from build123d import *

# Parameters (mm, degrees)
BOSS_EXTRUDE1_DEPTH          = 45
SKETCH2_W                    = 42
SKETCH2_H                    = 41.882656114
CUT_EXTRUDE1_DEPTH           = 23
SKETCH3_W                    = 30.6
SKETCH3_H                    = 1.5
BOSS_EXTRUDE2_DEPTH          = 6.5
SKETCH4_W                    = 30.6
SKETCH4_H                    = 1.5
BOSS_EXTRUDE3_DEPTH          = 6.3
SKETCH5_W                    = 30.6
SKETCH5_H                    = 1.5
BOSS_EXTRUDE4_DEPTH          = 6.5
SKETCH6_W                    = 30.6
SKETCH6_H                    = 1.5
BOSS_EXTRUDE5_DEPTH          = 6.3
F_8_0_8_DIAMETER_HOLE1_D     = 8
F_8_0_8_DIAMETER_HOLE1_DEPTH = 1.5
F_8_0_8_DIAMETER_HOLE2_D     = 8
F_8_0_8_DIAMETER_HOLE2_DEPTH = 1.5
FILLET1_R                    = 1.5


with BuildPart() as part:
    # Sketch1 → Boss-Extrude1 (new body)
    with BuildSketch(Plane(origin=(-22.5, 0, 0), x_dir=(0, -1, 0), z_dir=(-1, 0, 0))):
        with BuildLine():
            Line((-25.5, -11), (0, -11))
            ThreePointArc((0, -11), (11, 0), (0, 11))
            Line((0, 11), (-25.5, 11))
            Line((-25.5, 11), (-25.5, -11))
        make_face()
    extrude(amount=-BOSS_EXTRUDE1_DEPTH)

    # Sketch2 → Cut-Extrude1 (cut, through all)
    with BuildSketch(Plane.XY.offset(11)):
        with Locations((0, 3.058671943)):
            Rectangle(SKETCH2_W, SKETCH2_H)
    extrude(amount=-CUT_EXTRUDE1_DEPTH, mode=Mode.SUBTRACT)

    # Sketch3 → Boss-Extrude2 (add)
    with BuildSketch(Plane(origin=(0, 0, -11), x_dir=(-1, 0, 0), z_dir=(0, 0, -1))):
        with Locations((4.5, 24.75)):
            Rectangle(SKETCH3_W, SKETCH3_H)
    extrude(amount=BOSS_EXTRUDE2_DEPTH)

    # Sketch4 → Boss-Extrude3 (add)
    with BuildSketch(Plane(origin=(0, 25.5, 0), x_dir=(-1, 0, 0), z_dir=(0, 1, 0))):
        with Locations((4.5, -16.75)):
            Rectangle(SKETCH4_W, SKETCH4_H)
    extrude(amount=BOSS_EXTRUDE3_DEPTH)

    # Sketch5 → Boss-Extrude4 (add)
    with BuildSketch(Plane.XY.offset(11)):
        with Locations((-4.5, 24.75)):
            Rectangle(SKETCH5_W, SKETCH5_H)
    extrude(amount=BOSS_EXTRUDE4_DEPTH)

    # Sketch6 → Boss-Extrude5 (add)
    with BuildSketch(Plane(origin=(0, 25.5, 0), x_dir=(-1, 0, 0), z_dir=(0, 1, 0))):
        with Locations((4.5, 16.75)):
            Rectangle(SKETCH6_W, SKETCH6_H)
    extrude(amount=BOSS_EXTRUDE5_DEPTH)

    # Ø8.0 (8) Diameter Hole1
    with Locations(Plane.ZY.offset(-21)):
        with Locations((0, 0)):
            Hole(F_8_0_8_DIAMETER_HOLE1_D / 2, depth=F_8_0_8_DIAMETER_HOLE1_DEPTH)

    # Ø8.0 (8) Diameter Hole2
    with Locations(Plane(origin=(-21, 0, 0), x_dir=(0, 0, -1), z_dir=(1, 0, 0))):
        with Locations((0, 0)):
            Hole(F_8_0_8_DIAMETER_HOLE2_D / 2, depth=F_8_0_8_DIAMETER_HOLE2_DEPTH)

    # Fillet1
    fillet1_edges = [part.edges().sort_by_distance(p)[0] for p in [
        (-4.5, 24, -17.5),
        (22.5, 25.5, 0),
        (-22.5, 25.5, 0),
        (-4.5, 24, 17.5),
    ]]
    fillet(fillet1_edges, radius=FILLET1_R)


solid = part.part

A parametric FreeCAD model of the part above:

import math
import FreeCAD as App
import Part
import Sketcher

V = App.Vector


def edges_at(feature, points):
    """Names of the edges that pass closest to the given points."""
    edges = feature.Shape.Edges
    near = lambda p: min(range(len(edges)), key=lambda i: edges[i].distToShape(Part.Vertex(*p))[0])
    return sorted({f"Edge{near(p) + 1}" for p in points})


def add_polygon(sketch, points):
    """Adds a closed chain of lines whose ends are joined by coincident constraints."""
    first, n = sketch.GeometryCount, len(points)
    for a, b in zip(points, points[1:] + points[:1]):
        sketch.addGeometry(Part.LineSegment(App.Vector(*a, 0), App.Vector(*b, 0)), False)
    for i in range(n):
        sketch.addConstraint(Sketcher.Constraint("Coincident", first + i, 2, first + (i + 1) % n, 1))

doc = App.newDocument("Part")
body = doc.addObject("PartDesign::Body", "Body")

sketch1 = doc.addObject("Sketcher::SketchObject", "Sketch")
body.addObject(sketch1)
sketch1.AttachmentSupport = (doc.YZ_Plane, [""])
sketch1.MapMode = "FlatFace"
sketch1.AttachmentOffset = App.Placement(V(0, 0, -22.5), App.Rotation())
sketch1.addGeometry([
    Part.LineSegment(V(26, -11, 0), V(0, -11, 0)),
    Part.ArcOfCircle(Part.Circle(V(0, 0, 0), V(0, 0, 1), 11), math.radians(90), math.radians(270)),
    Part.LineSegment(V(0, 11, 0), V(26, 11, 0)),
    Part.LineSegment(V(26, 11, 0), V(26, -11, 0)),
], False)
sketch1.addConstraint([
    Sketcher.Constraint("Tangent", 0, 2, 1, 2),
    Sketcher.Constraint("Tangent", 1, 1, 2, 1),
    Sketcher.Constraint("Coincident", 2, 2, 3, 1),
    Sketcher.Constraint("Coincident", 3, 2, 0, 1),
    Sketcher.Constraint("Horizontal", 0),
    Sketcher.Constraint("Horizontal", 2),
    Sketcher.Constraint("Vertical", 3),
    Sketcher.Constraint("Coincident", 1, 3, -1, 1),
    Sketcher.Constraint("Radius", 1, 11.0),
    Sketcher.Constraint("DistanceX", 0, 2, 0, 1, 25.5),
])
pad1 = doc.addObject("PartDesign::Pad", "Pad")
body.addObject(pad1)
pad1.Profile = sketch1
pad1.Length = 45

sketch2 = doc.addObject("Sketcher::SketchObject", "Sketch001")
body.addObject(sketch2)
sketch2.AttachmentSupport = (doc.XY_Plane, [""])
sketch2.MapMode = "FlatFace"
sketch2.AttachmentOffset = App.Placement(V(0, 0, 11), App.Rotation())
add_polygon(sketch2, [(-21, 24), (-21, -18), (21, -18), (21, 24)])
sketch2.addConstraint([
    Sketcher.Constraint("Vertical", 0),
    Sketcher.Constraint("Horizontal", 1),
    Sketcher.Constraint("Vertical", 2),
    Sketcher.Constraint("Horizontal", 3),
    Sketcher.Constraint("DistanceX", 1, 1, 1, 2, 42.0),
    Sketcher.Constraint("DistanceX", 0, 2, -1, 1, 21.0),
    Sketcher.Constraint("DistanceY", -1, 1, 2, 2, 24.0),
    Sketcher.Constraint("DistanceY", 0, 2, 0, 1, 41.882656),
])
pocket1 = doc.addObject("PartDesign::Pocket", "Pocket")
body.addObject(pocket1)
pocket1.Profile = sketch2
pocket1.Type = "ThroughAll"

sketch3 = doc.addObject("Sketcher::SketchObject", "Sketch002")
body.addObject(sketch3)
sketch3.AttachmentSupport = (doc.XY_Plane, [""])
sketch3.MapMode = "FlatFace"
sketch3.AttachmentOffset = App.Placement(V(0, 0, -11), App.Rotation())
add_polygon(sketch3, [(10.8, 25.5), (10.8, 24), (-19.8, 24), (-19.8, 25.5)])
sketch3.addConstraint([
    Sketcher.Constraint("Vertical", 0),
    Sketcher.Constraint("Horizontal", 1),
    Sketcher.Constraint("Vertical", 2),
    Sketcher.Constraint("Horizontal", 3),
    Sketcher.Constraint("DistanceX", 1, 2, 1, 1, 30.6),
    Sketcher.Constraint("DistanceY", 0, 2, 0, 1, 1.5),
    Sketcher.Constraint("DistanceY", -1, 1, 0, 2, 24.0),
    Sketcher.Constraint("DistanceX", -1, 1, 0, 2, 10.8),
])
pad2 = doc.addObject("PartDesign::Pad", "Pad001")
body.addObject(pad2)
pad2.Profile = sketch3
pad2.Length = 6.5
pad2.Reversed = True

sketch4 = doc.addObject("Sketcher::SketchObject", "Sketch003")
body.addObject(sketch4)
sketch4.AttachmentSupport = (doc.XZ_Plane, [""])
sketch4.MapMode = "FlatFace"
sketch4.AttachmentOffset = App.Placement(V(0, 0, -25.5), App.Rotation())
add_polygon(sketch4, [(10.8, -16), (10.8, -17.5), (-19.8, -17.5), (-19.8, -16)])
sketch4.addConstraint([
    Sketcher.Constraint("Vertical", 0),
    Sketcher.Constraint("Horizontal", 1),
    Sketcher.Constraint("Vertical", 2),
    Sketcher.Constraint("Horizontal", 3),
    Sketcher.Constraint("DistanceX", 1, 2, 1, 1, 30.6),
    Sketcher.Constraint("DistanceY", 0, 2, 0, 1, 1.5),
    Sketcher.Constraint("DistanceY", 2, 2, -1, 1, 16.0),
    Sketcher.Constraint("DistanceX", -1, 1, 0, 2, 10.8),
])
pad3 = doc.addObject("PartDesign::Pad", "Pad002")
body.addObject(pad3)
pad3.Profile = sketch4
pad3.Length = 6.3
pad3.Reversed = True

sketch5 = doc.addObject("Sketcher::SketchObject", "Sketch004")
body.addObject(sketch5)
sketch5.AttachmentSupport = (doc.XY_Plane, [""])
sketch5.MapMode = "FlatFace"
sketch5.AttachmentOffset = App.Placement(V(0, 0, 11), App.Rotation())
add_polygon(sketch5, [(-19.8, 25.5), (-19.8, 24), (10.8, 24), (10.8, 25.5)])
sketch5.addConstraint([
    Sketcher.Constraint("Vertical", 0),
    Sketcher.Constraint("Horizontal", 1),
    Sketcher.Constraint("Vertical", 2),
    Sketcher.Constraint("Horizontal", 3),
    Sketcher.Constraint("DistanceX", 1, 1, 1, 2, 30.6),
    Sketcher.Constraint("DistanceY", 0, 2, 0, 1, 1.5),
    Sketcher.Constraint("DistanceY", -1, 1, 0, 2, 24.0),
    Sketcher.Constraint("DistanceX", 0, 2, -1, 1, 19.8),
])
pad4 = doc.addObject("PartDesign::Pad", "Pad003")
body.addObject(pad4)
pad4.Profile = sketch5
pad4.Length = 6.5

sketch6 = doc.addObject("Sketcher::SketchObject", "Sketch005")
body.addObject(sketch6)
sketch6.AttachmentSupport = (doc.XZ_Plane, [""])
sketch6.MapMode = "FlatFace"
sketch6.AttachmentOffset = App.Placement(V(0, 0, -25.5), App.Rotation())
add_polygon(sketch6, [(10.8, 17.5), (10.8, 16), (-19.8, 16), (-19.8, 17.5)])
sketch6.addConstraint([
    Sketcher.Constraint("Vertical", 0),
    Sketcher.Constraint("Horizontal", 1),
    Sketcher.Constraint("Vertical", 2),
    Sketcher.Constraint("Horizontal", 3),
    Sketcher.Constraint("DistanceX", 1, 2, 1, 1, 30.6),
    Sketcher.Constraint("DistanceY", 0, 2, 0, 1, 1.5),
    Sketcher.Constraint("DistanceY", -1, 1, 0, 2, 16.0),
    Sketcher.Constraint("DistanceX", -1, 1, 0, 2, 10.8),
])
pad5 = doc.addObject("PartDesign::Pad", "Pad004")
body.addObject(pad5)
pad5.Profile = sketch6
pad5.Length = 6.3
pad5.Reversed = True

sketch7 = doc.addObject("Sketcher::SketchObject", "Sketch006")
body.addObject(sketch7)
sketch7.AttachmentSupport = (doc.YZ_Plane, [""])
sketch7.MapMode = "FlatFace"
sketch7.AttachmentOffset = App.Placement(V(0, 0, 21), App.Rotation())
sketch7.addGeometry(Part.Circle(V(0, 0, 0), V(0, 0, 1), 4), False)
sketch7.addConstraint([
    Sketcher.Constraint("Coincident", 0, 3, -1, 1),
    Sketcher.Constraint("Diameter", 0, 8.0),
])
doc.recompute()
hole = doc.addObject("PartDesign::Hole", "Hole")
body.addObject(hole)
hole.Profile = sketch7
hole.ThreadType = "None"
hole.Diameter = 8
hole.DepthType = "Dimension"
hole.Depth = 1.5
hole.DrillPoint = "Flat"
hole.Reversed = True

sketch8 = doc.addObject("Sketcher::SketchObject", "Sketch007")
body.addObject(sketch8)
sketch8.AttachmentSupport = (doc.YZ_Plane, [""])
sketch8.MapMode = "FlatFace"
sketch8.AttachmentOffset = App.Placement(V(0, 0, -21), App.Rotation())
sketch8.addGeometry(Part.Circle(V(0, 0, 0), V(0, 0, 1), 4), False)
sketch8.addConstraint([
    Sketcher.Constraint("Coincident", 0, 3, -1, 1),
    Sketcher.Constraint("Diameter", 0, 8.0),
])
doc.recompute()
hole2 = doc.addObject("PartDesign::Hole", "Hole001")
body.addObject(hole2)
hole2.Profile = sketch8
hole2.ThreadType = "None"
hole2.Diameter = 8
hole2.DepthType = "Dimension"
hole2.Depth = 1.5
hole2.DrillPoint = "Flat"
doc.recompute()

fillet = doc.addObject("PartDesign::Fillet", "Fillet")
body.addObject(fillet)
fillet.Base = (hole2, edges_at(hole2, [
    (-4.5, 24, -17.5),
    (22.5, 25.5, 0),
    (-22.5, 25.5, 0),
    (-4.5, 24, 17.5),
]))
fillet.Radius = 1.5

doc.recompute()
